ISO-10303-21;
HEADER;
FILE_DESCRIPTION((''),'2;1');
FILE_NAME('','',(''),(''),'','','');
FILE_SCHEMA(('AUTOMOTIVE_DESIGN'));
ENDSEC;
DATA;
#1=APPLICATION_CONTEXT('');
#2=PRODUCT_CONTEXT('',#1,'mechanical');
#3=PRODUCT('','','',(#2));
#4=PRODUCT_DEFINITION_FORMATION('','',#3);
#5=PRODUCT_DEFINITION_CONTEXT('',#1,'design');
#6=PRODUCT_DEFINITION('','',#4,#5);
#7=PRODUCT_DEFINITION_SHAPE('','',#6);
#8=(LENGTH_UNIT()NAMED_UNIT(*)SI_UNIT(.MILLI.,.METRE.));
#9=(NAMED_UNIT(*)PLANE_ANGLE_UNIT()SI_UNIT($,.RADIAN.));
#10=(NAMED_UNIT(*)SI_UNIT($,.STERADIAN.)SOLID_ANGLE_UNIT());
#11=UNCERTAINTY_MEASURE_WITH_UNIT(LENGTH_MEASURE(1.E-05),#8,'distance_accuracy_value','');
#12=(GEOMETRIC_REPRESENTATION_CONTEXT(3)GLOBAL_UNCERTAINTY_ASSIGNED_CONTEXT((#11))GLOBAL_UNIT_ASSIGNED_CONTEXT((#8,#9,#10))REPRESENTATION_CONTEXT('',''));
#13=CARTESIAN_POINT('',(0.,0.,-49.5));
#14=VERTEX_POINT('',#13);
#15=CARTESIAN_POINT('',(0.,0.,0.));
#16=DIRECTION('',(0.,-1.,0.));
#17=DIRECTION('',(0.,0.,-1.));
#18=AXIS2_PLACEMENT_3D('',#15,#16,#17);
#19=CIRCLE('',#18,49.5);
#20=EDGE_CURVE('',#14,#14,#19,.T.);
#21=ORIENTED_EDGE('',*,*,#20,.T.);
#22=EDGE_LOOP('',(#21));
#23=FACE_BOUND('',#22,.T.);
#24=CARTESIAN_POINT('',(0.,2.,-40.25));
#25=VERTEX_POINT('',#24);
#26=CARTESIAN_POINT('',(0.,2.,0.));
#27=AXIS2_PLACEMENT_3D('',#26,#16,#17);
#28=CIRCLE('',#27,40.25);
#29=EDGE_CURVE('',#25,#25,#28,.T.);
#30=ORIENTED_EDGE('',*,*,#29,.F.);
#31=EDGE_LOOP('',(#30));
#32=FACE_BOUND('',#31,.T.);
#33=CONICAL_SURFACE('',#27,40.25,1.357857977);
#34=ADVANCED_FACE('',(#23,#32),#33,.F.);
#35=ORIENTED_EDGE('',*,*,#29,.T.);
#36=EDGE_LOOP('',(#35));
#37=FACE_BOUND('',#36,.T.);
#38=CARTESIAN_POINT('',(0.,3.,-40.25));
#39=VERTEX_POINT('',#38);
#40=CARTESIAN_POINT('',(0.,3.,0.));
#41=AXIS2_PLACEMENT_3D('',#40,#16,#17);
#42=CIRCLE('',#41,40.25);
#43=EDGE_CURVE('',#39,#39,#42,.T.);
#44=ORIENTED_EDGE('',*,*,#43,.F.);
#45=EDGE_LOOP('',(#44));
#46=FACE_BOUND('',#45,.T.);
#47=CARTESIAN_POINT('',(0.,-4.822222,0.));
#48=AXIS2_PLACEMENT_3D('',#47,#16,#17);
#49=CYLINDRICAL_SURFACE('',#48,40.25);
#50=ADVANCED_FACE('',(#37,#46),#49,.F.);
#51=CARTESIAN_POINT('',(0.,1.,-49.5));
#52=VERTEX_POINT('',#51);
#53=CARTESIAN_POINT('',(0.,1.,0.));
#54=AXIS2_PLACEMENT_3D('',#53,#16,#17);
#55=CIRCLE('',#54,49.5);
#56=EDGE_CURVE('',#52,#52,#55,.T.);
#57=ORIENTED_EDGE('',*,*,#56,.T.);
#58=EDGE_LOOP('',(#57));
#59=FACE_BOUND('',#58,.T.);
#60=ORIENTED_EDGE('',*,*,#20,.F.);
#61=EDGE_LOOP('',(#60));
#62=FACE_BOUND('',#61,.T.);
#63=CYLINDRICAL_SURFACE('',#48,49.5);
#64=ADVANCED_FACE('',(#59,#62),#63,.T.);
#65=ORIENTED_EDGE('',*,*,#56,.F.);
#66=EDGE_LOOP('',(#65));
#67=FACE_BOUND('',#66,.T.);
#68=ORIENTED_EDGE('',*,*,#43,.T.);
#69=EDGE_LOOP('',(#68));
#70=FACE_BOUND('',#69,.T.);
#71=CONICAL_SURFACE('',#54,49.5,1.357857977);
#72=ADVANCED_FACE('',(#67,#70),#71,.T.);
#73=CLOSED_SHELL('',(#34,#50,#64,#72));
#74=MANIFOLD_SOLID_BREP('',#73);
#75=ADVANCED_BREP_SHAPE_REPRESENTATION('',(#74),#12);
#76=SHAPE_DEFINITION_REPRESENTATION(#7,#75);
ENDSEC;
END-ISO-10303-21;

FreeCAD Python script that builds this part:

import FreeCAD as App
import Part
import Sketcher

doc = App.newDocument("Part")
body = doc.addObject("PartDesign::Body", "Body")

# Sketch on XY plane
sketch1 = doc.addObject("Sketcher::SketchObject", "Sketch")
body.addObject(sketch1)
sketch1.AttachmentSupport = (doc.XY_Plane, [""])
sketch1.MapMode = "FlatFace"
sketch1.addGeometry([
    Part.LineSegment(App.Vector(49.5, 0, 0), App.Vector(49.5, 1, 0)),
    Part.LineSegment(App.Vector(49.5, 1, 0), App.Vector(40.2, 3, 0)),
    Part.LineSegment(App.Vector(40.2, 3, 0), App.Vector(40.2, 2, 0)),
    Part.LineSegment(App.Vector(40.2, 2, 0), App.Vector(49.5, 0, 0)),
], False)
sketch1.addConstraint([
    Sketcher.Constraint("Coincident", 0, 2, 1, 1),
    Sketcher.Constraint("Coincident", 1, 2, 2, 1),
    Sketcher.Constraint("Coincident", 2, 2, 3, 1),
    Sketcher.Constraint("Coincident", 3, 2, 0, 1),
    Sketcher.Constraint("Vertical", 0),
    Sketcher.Constraint("Vertical", 2),
    Sketcher.Constraint("PointOnObject", 3, 2, -1),
    Sketcher.Constraint("Parallel", 1, 3),
    Sketcher.Constraint("DistanceY", 0, 1, 0, 2, 1.0),
    Sketcher.Constraint("DistanceY", -1, 1, 1, 2, 3.0),
    Sketcher.Constraint("DistanceX", -1, 1, 0, 2, 49.5),
    Sketcher.Constraint("DistanceX", -1, 1, 1, 2, 40.25),
])
revolution = doc.addObject("PartDesign::Revolution", "Revolution")
body.addObject(revolution)
revolution.Profile = sketch1
revolution.ReferenceAxis = (sketch1, ["V_Axis"])
revolution.Angle = 360

doc.recompute()
